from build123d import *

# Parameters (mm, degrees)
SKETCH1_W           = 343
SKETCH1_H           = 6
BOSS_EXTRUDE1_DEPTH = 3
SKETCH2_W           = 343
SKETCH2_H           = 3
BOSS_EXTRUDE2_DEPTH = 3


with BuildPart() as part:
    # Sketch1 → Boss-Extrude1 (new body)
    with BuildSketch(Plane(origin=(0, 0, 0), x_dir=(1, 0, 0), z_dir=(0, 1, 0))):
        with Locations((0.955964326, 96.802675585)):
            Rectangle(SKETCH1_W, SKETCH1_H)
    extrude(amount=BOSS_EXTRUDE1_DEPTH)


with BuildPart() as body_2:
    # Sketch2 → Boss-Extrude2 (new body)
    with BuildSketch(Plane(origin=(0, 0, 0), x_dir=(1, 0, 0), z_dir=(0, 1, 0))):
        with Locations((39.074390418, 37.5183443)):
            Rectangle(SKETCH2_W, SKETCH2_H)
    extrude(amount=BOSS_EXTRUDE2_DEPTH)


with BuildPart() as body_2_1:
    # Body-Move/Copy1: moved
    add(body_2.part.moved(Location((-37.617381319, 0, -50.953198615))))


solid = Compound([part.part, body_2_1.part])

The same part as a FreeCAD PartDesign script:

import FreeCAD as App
import Part
import Sketcher


def add_polygon(sketch, points):
    """Adds a closed chain of lines whose ends are joined by coincident constraints."""
    first, n = sketch.GeometryCount, len(points)
    for a, b in zip(points, points[1:] + points[:1]):
        sketch.addGeometry(Part.LineSegment(App.Vector(*a, 0), App.Vector(*b, 0)), False)
    for i in range(n):
        sketch.addConstraint(Sketcher.Constraint("Coincident", first + i, 2, first + (i + 1) % n, 1))

doc = App.newDocument("Part")
body = doc.addObject("PartDesign::Body", "Body")

# Sketch on XZ plane
sketch1 = doc.addObject("Sketcher::SketchObject", "Sketch")
body.addObject(sketch1)
sketch1.AttachmentSupport = (doc.XZ_Plane, [""])
sketch1.MapMode = "FlatFace"
add_polygon(sketch1, [(-171, -100), (-171, -94), (172, -94), (172, -100)])  # lines 0-3
sketch1.addConstraint([
    Sketcher.Constraint("Vertical", 0),
    Sketcher.Constraint("Horizontal", 1),
    Sketcher.Constraint("Vertical", 2),
    Sketcher.Constraint("Horizontal", 3),
    Sketcher.Constraint("DistanceX", 1, 1, 1, 2, 343.0),
    Sketcher.Constraint("DistanceY", 0, 1, 0, 2, 6.0),
    Sketcher.Constraint("DistanceX", 0, 2, -1, 1, 170.544036),
    Sketcher.Constraint("DistanceY", 0, 2, -1, 1, 93.802676),
])
pad1 = doc.addObject("PartDesign::Pad", "Pad")
body.addObject(pad1)
pad1.Profile = sketch1
pad1.Length = 3
pad1.Reversed = True
body2 = doc.addObject("PartDesign::Body", "Body001")

# Sketch on XZ plane
sketch2 = doc.addObject("Sketcher::SketchObject", "Sketch001")
body2.addObject(sketch2)
sketch2.AttachmentSupport = (doc.getObject("XZ_Plane001"), [""])
sketch2.MapMode = "FlatFace"
add_polygon(sketch2, [(-132.4, -39), (-132.4, -36), (210.6, -36), (210.6, -39)])  # lines 0-3
sketch2.addConstraint([
    Sketcher.Constraint("Vertical", 0),
    Sketcher.Constraint("Horizontal", 1),
    Sketcher.Constraint("Vertical", 2),
    Sketcher.Constraint("Horizontal", 3),
    Sketcher.Constraint("DistanceX", 1, 1, 1, 2, 343.0),
    Sketcher.Constraint("DistanceY", 0, 1, 0, 2, 3.0),
    Sketcher.Constraint("DistanceX", 0, 2, -1, 1, 132.42561),
    Sketcher.Constraint("DistanceY", 0, 2, -1, 1, 36.018344),
])
pad2 = doc.addObject("PartDesign::Pad", "Pad001")
body2.addObject(pad2)
pad2.Profile = sketch2
pad2.Length = 3
pad2.Reversed = True
body3 = doc.addObject("PartDesign::Body", "Body002")
doc.recompute()

body2.Placement = App.Placement(App.Vector(-37.617381, 0, -50.953199), App.Rotation(App.Vector(0, 0, 1), 0))
boolean = doc.addObject("PartDesign::Boolean", "Boolean")
body3.addObject(boolean)
boolean.Type = "Fuse"
boolean.addObjects([body2])

doc.recompute()
